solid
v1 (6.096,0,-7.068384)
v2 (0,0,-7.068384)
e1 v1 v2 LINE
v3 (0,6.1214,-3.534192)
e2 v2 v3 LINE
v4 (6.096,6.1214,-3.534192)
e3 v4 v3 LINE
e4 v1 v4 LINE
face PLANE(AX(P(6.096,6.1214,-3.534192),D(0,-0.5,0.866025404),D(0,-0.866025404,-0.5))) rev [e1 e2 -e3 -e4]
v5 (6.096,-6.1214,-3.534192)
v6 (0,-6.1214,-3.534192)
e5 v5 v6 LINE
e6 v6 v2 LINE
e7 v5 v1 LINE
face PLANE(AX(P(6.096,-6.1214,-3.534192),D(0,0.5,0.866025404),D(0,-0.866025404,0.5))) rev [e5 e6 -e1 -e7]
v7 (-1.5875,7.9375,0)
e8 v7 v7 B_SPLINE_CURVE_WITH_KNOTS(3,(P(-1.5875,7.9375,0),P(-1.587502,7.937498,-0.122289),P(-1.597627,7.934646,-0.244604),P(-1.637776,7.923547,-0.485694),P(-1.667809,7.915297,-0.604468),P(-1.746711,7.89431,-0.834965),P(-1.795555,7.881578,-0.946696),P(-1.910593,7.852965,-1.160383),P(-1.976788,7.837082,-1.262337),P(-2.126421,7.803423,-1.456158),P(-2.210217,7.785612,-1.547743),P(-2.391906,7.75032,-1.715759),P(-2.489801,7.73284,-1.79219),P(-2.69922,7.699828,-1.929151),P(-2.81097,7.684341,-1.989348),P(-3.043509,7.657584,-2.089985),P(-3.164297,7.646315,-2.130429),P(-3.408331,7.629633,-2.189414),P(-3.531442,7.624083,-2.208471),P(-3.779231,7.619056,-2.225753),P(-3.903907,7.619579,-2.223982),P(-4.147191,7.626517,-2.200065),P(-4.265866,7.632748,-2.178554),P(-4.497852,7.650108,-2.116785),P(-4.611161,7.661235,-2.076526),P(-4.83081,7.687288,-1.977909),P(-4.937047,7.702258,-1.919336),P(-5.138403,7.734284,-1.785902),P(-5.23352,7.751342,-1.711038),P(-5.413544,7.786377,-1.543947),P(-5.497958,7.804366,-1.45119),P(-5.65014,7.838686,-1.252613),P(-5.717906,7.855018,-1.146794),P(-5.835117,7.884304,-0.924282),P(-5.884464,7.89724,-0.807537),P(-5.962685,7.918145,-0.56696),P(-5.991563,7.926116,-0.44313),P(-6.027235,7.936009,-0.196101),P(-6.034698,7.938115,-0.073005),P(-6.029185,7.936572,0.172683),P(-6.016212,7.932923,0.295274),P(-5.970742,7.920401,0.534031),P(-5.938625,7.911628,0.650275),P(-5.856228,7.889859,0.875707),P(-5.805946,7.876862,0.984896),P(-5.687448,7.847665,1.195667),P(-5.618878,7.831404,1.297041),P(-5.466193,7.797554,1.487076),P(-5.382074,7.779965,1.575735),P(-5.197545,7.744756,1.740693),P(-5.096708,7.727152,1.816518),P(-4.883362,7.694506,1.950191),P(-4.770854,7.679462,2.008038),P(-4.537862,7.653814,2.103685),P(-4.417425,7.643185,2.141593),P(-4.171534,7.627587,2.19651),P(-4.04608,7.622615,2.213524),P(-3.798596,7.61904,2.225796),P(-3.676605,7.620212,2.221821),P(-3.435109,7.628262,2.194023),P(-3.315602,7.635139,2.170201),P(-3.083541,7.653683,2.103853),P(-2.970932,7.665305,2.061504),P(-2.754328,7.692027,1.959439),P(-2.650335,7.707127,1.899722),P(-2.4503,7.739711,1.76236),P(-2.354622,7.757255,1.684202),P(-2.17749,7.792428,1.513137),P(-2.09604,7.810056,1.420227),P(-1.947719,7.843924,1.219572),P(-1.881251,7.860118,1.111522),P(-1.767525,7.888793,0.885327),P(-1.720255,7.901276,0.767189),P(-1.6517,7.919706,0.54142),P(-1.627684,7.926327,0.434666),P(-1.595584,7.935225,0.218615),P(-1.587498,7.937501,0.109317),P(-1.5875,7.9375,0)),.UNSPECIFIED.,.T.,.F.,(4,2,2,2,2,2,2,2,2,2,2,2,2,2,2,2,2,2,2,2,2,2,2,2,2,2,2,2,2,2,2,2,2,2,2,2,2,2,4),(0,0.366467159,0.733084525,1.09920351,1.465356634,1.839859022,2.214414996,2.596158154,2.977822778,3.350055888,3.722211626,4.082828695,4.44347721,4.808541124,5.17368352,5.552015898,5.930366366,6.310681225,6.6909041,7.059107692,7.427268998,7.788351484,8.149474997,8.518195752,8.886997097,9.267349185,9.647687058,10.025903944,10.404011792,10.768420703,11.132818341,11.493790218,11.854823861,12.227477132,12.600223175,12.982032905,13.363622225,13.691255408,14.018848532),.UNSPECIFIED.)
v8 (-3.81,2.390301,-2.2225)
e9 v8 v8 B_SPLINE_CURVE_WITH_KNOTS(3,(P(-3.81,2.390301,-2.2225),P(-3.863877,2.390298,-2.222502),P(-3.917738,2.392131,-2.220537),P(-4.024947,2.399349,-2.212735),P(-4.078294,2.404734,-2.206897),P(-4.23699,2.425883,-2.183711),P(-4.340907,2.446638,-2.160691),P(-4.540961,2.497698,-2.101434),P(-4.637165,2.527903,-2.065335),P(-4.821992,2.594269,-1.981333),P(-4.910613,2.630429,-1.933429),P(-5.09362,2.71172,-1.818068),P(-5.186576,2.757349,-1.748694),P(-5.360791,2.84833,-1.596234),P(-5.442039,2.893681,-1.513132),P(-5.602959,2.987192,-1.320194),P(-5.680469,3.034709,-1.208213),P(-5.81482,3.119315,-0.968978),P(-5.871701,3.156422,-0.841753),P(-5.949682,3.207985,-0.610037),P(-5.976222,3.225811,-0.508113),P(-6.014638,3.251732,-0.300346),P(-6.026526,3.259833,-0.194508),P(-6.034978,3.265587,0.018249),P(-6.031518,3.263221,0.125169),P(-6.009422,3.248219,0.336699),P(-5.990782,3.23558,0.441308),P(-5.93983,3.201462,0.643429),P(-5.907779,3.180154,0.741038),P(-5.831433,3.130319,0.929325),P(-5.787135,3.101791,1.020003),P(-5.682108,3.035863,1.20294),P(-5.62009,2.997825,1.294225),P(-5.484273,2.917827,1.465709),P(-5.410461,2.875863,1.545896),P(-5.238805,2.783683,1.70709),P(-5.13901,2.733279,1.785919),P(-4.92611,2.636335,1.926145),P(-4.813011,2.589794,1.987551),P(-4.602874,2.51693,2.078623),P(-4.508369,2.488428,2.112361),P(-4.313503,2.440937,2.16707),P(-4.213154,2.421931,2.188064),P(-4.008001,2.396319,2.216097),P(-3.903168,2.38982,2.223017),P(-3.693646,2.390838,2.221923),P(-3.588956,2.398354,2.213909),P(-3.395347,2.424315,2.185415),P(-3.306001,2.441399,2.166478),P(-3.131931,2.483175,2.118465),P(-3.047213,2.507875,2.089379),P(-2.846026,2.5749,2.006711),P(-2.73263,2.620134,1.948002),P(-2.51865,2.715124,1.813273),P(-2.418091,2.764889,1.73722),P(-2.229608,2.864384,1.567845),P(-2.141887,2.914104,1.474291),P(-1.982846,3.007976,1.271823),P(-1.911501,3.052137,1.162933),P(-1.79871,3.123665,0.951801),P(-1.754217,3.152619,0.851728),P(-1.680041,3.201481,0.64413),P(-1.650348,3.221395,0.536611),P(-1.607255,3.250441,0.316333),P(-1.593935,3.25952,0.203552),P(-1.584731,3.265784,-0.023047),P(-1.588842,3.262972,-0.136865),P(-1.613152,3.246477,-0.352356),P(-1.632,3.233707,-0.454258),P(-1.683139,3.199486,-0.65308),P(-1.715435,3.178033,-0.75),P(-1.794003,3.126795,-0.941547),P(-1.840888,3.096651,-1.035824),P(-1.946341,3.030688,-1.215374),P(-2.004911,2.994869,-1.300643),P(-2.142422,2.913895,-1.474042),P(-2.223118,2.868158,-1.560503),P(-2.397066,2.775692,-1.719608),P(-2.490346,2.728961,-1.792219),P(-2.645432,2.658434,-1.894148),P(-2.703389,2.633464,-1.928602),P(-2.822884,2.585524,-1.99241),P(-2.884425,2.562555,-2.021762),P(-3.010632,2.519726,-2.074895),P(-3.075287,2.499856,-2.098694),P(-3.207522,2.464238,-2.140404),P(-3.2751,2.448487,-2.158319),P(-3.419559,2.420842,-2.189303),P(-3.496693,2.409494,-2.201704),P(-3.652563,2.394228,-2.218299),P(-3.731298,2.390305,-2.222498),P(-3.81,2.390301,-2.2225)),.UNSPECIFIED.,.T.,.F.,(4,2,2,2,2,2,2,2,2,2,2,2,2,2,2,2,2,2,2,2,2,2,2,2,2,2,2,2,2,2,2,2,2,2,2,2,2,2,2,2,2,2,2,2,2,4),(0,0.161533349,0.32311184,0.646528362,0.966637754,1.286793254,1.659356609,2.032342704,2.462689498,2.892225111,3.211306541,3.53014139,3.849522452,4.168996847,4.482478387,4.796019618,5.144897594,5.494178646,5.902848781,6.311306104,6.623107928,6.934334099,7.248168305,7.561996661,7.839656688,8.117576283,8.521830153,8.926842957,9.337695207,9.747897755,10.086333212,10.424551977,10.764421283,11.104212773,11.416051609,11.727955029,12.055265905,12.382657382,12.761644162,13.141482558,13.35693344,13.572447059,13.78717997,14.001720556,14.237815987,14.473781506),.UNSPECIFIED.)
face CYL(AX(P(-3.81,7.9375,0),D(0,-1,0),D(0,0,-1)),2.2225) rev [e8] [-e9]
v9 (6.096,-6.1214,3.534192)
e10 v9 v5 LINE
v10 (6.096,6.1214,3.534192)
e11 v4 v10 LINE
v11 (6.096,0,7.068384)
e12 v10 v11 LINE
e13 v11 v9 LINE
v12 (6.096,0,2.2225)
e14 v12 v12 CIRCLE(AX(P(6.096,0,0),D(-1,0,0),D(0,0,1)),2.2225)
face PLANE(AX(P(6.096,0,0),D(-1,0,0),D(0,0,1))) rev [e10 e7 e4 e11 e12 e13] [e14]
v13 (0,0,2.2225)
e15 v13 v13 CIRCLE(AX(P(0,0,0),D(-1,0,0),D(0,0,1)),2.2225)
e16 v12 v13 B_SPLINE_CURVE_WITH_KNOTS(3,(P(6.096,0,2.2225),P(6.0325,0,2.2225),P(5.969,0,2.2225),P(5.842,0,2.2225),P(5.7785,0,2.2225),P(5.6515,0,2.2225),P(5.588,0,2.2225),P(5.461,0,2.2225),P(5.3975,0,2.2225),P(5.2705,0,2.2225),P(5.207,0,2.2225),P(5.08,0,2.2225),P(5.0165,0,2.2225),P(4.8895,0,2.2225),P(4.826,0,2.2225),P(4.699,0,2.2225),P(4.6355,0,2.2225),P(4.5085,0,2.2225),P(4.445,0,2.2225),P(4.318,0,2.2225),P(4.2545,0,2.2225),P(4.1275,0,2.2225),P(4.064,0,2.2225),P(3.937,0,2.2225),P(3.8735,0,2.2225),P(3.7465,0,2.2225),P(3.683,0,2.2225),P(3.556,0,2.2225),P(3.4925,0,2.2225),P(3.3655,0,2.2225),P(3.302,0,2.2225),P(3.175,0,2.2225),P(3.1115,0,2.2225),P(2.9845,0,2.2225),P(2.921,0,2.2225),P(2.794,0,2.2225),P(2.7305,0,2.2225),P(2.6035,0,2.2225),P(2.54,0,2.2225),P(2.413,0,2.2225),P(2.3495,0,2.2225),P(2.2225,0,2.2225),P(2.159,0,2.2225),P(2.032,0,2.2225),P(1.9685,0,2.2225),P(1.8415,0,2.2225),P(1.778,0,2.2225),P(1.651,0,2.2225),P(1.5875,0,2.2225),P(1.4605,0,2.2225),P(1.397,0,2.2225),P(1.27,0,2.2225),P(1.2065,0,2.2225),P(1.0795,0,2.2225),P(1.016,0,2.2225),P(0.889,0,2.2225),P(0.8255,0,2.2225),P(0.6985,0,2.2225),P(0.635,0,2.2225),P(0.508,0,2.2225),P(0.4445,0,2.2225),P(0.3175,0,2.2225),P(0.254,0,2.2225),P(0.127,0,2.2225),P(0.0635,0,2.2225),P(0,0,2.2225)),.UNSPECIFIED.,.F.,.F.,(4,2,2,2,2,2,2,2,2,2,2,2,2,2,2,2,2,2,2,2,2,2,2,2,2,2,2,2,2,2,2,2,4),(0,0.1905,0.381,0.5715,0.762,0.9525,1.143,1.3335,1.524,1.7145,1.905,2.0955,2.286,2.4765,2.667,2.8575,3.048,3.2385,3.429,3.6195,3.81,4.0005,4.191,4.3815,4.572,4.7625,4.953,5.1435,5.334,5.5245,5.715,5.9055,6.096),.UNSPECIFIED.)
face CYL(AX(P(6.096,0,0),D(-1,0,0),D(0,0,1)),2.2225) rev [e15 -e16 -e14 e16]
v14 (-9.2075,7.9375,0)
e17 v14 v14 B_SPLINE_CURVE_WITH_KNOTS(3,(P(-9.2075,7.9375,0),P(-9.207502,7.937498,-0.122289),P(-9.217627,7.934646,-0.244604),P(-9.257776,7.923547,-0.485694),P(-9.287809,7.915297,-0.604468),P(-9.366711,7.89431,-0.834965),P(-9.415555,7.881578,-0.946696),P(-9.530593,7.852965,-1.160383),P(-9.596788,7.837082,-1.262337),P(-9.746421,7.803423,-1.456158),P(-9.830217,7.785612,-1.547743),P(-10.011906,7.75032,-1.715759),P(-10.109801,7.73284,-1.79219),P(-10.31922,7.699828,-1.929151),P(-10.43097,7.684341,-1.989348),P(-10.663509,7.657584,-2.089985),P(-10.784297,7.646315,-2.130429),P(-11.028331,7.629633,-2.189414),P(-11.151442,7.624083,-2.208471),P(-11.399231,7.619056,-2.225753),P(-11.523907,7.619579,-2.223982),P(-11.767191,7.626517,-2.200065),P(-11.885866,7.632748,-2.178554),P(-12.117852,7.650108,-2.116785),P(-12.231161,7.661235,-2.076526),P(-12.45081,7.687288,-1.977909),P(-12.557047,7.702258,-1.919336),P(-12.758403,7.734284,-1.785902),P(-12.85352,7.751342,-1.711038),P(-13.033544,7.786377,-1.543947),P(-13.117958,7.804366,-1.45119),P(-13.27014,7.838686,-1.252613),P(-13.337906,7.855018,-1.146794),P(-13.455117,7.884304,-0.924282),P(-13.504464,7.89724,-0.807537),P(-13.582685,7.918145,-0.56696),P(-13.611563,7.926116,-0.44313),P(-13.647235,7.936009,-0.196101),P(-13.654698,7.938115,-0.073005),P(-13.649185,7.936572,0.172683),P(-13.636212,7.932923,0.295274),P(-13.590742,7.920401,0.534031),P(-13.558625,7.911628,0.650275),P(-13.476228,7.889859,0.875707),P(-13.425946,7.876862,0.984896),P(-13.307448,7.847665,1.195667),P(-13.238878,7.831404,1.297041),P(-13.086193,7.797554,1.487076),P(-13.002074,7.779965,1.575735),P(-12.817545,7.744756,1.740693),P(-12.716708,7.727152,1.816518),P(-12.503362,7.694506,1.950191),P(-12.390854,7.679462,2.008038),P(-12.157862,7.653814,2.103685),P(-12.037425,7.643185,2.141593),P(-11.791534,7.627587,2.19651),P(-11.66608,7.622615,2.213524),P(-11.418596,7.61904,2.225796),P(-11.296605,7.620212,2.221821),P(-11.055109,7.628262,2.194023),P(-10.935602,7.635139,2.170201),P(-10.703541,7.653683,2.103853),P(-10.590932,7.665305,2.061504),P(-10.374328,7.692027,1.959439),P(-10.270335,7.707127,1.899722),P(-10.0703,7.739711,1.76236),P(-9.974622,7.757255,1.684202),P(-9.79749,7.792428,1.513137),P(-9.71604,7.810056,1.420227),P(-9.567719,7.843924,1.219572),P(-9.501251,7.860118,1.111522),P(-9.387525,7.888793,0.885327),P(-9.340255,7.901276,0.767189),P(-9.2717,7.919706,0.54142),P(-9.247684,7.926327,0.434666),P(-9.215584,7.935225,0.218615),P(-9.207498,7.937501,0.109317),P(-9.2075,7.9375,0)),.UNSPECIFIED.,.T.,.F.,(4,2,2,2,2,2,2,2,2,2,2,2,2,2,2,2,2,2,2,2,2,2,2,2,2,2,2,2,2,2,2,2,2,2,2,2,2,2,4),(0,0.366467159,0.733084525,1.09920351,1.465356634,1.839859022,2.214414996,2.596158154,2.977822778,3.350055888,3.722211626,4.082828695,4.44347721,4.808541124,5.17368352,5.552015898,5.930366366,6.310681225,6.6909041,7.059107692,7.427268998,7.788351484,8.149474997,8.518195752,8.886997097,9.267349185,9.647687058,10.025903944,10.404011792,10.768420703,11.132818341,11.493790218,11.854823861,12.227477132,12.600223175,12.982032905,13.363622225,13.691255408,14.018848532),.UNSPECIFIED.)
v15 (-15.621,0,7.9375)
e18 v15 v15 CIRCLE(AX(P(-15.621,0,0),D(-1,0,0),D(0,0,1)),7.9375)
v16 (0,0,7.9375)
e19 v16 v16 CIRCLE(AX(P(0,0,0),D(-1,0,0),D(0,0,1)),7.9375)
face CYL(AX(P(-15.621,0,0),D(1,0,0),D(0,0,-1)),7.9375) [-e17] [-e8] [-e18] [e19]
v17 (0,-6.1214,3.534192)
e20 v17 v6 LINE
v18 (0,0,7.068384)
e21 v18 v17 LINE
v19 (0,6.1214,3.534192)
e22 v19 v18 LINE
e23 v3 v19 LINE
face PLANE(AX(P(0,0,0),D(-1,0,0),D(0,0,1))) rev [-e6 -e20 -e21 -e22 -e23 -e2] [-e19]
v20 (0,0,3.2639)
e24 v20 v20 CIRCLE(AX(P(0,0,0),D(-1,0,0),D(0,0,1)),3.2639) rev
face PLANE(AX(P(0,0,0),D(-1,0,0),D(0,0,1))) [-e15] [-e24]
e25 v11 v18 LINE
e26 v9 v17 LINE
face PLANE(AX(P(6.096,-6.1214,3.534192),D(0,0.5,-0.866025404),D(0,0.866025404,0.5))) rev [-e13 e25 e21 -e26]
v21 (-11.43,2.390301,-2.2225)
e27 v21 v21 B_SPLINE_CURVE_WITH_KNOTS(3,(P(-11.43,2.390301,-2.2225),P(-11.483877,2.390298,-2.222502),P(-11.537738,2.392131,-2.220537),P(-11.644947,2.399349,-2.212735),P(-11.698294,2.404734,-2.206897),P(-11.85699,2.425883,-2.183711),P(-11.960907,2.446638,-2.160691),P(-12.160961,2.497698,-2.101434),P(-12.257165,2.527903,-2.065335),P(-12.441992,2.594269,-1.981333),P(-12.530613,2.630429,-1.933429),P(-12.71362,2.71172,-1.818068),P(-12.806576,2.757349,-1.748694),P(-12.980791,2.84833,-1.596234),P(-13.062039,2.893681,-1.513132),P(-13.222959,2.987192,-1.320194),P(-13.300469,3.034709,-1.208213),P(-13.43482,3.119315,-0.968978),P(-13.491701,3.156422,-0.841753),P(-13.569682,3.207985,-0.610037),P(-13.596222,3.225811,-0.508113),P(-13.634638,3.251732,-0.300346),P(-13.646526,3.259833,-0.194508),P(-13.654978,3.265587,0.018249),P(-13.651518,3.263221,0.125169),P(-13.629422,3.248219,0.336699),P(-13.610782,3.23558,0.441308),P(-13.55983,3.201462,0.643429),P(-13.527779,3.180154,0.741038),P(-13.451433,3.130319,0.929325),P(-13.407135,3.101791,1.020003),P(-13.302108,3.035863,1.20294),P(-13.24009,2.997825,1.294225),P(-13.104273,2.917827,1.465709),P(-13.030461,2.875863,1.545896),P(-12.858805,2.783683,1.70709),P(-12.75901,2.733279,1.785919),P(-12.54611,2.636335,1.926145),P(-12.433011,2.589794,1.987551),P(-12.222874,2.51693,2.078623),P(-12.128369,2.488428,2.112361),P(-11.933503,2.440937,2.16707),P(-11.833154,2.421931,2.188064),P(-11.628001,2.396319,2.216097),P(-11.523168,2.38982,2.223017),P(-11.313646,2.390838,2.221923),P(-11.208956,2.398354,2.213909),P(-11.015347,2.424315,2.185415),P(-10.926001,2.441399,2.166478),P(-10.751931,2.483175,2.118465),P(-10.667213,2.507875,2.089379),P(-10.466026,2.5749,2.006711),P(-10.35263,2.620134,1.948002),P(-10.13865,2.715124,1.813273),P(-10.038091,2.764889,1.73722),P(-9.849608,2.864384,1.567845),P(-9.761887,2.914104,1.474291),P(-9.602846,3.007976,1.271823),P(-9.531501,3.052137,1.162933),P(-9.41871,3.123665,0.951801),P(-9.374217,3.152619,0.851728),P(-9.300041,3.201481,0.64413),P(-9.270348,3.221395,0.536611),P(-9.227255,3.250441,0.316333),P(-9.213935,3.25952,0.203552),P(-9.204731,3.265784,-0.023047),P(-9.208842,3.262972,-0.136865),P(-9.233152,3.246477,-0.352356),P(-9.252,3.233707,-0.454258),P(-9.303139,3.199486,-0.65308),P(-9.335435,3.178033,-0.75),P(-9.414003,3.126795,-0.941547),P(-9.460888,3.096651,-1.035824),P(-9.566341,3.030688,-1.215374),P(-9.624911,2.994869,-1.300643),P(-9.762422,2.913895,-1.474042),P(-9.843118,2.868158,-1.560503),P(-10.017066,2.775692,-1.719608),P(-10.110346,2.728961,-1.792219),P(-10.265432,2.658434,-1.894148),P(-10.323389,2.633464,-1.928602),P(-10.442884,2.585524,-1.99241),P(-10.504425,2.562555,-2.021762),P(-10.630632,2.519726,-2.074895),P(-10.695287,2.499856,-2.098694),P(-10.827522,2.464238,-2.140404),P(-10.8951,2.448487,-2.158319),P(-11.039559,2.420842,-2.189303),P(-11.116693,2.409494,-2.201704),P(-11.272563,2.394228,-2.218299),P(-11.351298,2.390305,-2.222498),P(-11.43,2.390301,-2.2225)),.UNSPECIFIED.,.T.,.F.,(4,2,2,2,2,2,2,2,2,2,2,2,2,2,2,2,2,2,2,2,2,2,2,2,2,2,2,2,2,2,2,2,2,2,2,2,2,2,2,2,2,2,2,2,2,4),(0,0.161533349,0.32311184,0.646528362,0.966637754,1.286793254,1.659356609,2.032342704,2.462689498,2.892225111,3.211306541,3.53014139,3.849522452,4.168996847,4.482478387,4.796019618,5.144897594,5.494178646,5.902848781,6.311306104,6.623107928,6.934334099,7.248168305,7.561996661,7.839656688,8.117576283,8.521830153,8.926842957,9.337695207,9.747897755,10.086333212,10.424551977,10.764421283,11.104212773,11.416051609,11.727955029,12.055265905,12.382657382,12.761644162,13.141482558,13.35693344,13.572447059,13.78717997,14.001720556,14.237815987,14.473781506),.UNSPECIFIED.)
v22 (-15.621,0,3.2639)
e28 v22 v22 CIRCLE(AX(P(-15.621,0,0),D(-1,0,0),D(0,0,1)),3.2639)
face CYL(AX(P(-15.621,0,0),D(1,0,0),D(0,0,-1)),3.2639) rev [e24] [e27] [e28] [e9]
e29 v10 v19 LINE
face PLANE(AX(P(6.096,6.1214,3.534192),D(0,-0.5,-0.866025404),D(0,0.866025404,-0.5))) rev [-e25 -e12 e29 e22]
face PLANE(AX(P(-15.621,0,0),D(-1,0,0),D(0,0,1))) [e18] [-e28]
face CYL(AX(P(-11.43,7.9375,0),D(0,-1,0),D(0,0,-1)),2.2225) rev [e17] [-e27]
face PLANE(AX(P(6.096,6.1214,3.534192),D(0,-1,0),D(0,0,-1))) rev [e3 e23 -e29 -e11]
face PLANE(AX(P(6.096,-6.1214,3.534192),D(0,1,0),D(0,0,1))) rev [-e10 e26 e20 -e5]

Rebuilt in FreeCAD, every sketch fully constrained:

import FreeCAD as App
import Part
import Sketcher
from FreeCAD import Vector
Q = App.Units.Quantity


def add_polygon(sketch, points):
    """Adds a closed chain of lines whose ends are joined by coincident constraints."""
    first, n = sketch.GeometryCount, len(points)
    for a, b in zip(points, points[1:] + points[:1]):
        sketch.addGeometry(Part.LineSegment(App.Vector(*a, 0), App.Vector(*b, 0)), False)
    for i in range(n):
        sketch.addConstraint(Sketcher.Constraint("Coincident", first + i, 2, first + (i + 1) % n, 1))

doc = App.newDocument("Part")
body = doc.addObject("PartDesign::Body", "Body")

sketch1 = body.newObject("Sketcher::SketchObject", "Sketch")
sketch1.AttachmentSupport = (doc.getObject("YZ_Plane"), [""])
sketch1.MapMode = "FlatFace"
add_polygon(sketch1, [(6, -4), (6, 4), (0, 7), (-6, 4), (-6, -4), (0, -7)])
sketch1.addConstraint([
    Sketcher.Constraint("Vertical", 0),
    Sketcher.Constraint("Vertical", 3),
    Sketcher.Constraint("Symmetric", 0, 2, 3, 2, -1, 1),
    Sketcher.Constraint("Symmetric", 1, 2, 4, 2, -1, 1),
    Sketcher.Constraint("PointOnObject", 1, 2, -2),
    Sketcher.Constraint("Parallel", 2, 5),
    Sketcher.Constraint("Horizontal", 0, 2, 2, 2),
    Sketcher.Constraint("Angle", 1, Q("150 deg")),
    Sketcher.Constraint("DistanceX", -1, 1, 0, 2, Q("0.241 in")),
    Sketcher.Constraint("DistanceY", 0, 1, 0, 2, Q("7.068384 mm")),
])
pad1 = body.newObject("PartDesign::Pad", "Pad")
pad1.Profile = sketch1
pad1.Length = Q("0.24 in")

sketch2 = body.newObject("Sketcher::SketchObject", "Sketch001")
sketch2.AttachmentSupport = (doc.getObject("YZ_Plane"), [""])
sketch2.MapMode = "FlatFace"
sketch2.addGeometry([
    Part.Circle(Vector(0, 0, 0), Vector(0, 0, 1), 7.9),
    Part.Circle(Vector(0, 0, 0), Vector(0, 0, 1), 3.3),
], False)
sketch2.addConstraint([
    Sketcher.Constraint("Coincident", 0, 3, -1, 1),
    Sketcher.Constraint("Coincident", 1, 3, -1, 1),
    Sketcher.Constraint("Diameter", 0, Q("0.625 in")),
    Sketcher.Constraint("Diameter", 1, Q("0.257 in")),
])
pad2 = body.newObject("PartDesign::Pad", "Pad001")
pad2.Profile = sketch2
pad2.Length = Q("0.615 in")
pad2.Reversed = True

sketch3 = body.newObject("Sketcher::SketchObject", "Sketch002")
sketch3.AttachmentSupport = (doc.getObject("XZ_Plane"), [""])
sketch3.MapMode = "FlatFace"
sketch3.addGeometry([
    Part.Circle(Vector(-11.4, 0, 0), Vector(0, 0, 1), 2.2),
    Part.Circle(Vector(-3.8, 0, 0), Vector(0, 0, 1), 2.2),
], False)
sketch3.addConstraint([
    Sketcher.Constraint("Equal", 0, 1),
    Sketcher.Constraint("PointOnObject", 0, 3, -1),
    Sketcher.Constraint("PointOnObject", 1, 3, -1),
    Sketcher.Constraint("Diameter", 0, Q("0.175 in")),
    Sketcher.Constraint("DistanceX", 0, 3, 1, 3, Q("0.3 in")),
    Sketcher.Constraint("DistanceX", 0, 3, -1, 1, Q("0.45 in")),
])
pocket1 = body.newObject("PartDesign::Pocket", "Pocket")
pocket1.Profile = sketch3
pocket1.Type = "ThroughAll"

sketch4 = body.newObject("Sketcher::SketchObject", "Sketch003")
sketch4.AttachmentSupport = (doc.getObject("YZ_Plane"), [""])
sketch4.MapMode = "FlatFace"
sketch4.addGeometry(Part.Circle(Vector(0, 0, 0), Vector(0, 0, 1), 2.2), False)
sketch4.addConstraint([
    Sketcher.Constraint("Coincident", 0, 3, -1, 1),
    Sketcher.Constraint("Diameter", 0, Q("0.175 in")),
])
pocket2 = body.newObject("PartDesign::Pocket", "Pocket001")
pocket2.Profile = sketch4
pocket2.Type = "ThroughAll"
pocket2.Reversed = True

doc.recompute()
